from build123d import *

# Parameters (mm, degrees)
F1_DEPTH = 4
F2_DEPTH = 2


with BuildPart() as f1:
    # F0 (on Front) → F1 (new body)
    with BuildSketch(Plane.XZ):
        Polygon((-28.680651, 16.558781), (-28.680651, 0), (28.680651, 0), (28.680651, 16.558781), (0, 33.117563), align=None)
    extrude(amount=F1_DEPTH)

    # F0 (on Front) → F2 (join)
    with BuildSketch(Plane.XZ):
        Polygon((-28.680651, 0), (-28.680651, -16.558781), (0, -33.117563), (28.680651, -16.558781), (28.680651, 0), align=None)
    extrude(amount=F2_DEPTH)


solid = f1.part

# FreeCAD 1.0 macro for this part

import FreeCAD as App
import Part
import Sketcher

V = App.Vector
Q = App.Units.Quantity


def add_polygon(sketch, points):
    """Adds a closed chain of lines whose ends are joined by coincident constraints."""
    first, n = sketch.GeometryCount, len(points)
    for a, b in zip(points, points[1:] + points[:1]):
        sketch.addGeometry(Part.LineSegment(App.Vector(*a, 0), App.Vector(*b, 0)), False)
    for i in range(n):
        sketch.addConstraint(Sketcher.Constraint("Coincident", first + i, 2, first + (i + 1) % n, 1))

doc = App.newDocument("Part")
body = doc.addObject("PartDesign::Body", "Body")

# Sketch on XZ plane
sketch1 = doc.addObject("Sketcher::SketchObject", "Sketch")
body.addObject(sketch1)
sketch1.AttachmentSupport = (doc.XZ_Plane, [""])
sketch1.MapMode = "FlatFace"
add_polygon(sketch1, [(-28.680651, 16.558781), (-28.680651, 0), (28.680651, 0), (28.680651, 16.558781), (0, 33.117563)])  # lines 0-4
sketch1.addConstraint([
    Sketcher.Constraint("Vertical", 0),
    Sketcher.Constraint("Horizontal", 1),
    Sketcher.Constraint("Vertical", 2),
    Sketcher.Constraint("Symmetric", 0, 2, 1, 2, -1, 1),
    Sketcher.Constraint("PointOnObject", 3, 2, -2),
    Sketcher.Constraint("Horizontal", 2, 2, 4, 2),
    Sketcher.Constraint("Angle", 3, Q("149.999999 deg")),
    Sketcher.Constraint("DistanceY", 0, 2, 0, 1, Q("16.558781 mm")),
    Sketcher.Constraint("DistanceX", 1, 1, 1, 2, Q("57.361302 mm")),
])
pad1 = doc.addObject("PartDesign::Pad", "Pad")
body.addObject(pad1)
pad1.Profile = sketch1
pad1.Length = 4

# Sketch on XZ plane
sketch2 = doc.addObject("Sketcher::SketchObject", "Sketch001")
body.addObject(sketch2)
sketch2.AttachmentSupport = (doc.XZ_Plane, [""])
sketch2.MapMode = "FlatFace"
add_polygon(sketch2, [(-28.680651, 0), (-28.680651, -16.558781), (0, -33.117563), (28.680651, -16.558781), (28.680651, 0)])  # lines 0-4
sketch2.addConstraint([
    Sketcher.Constraint("Vertical", 0),
    Sketcher.Constraint("Vertical", 3),
    Sketcher.Constraint("Horizontal", 4),
    Sketcher.Constraint("Symmetric", 3, 2, 4, 2, -1, 1),
    Sketcher.Constraint("PointOnObject", 1, 2, -2),
    Sketcher.Constraint("Horizontal", 0, 2, 2, 2),
    Sketcher.Constraint("Angle", 1, Q("-30.000001 deg")),
    Sketcher.Constraint("DistanceY", 0, 2, 0, 1, Q("16.558781 mm")),
    Sketcher.Constraint("DistanceX", 4, 2, 4, 1, Q("57.361302 mm")),
])
pad2 = doc.addObject("PartDesign::Pad", "Pad001")
body.addObject(pad2)
pad2.Profile = sketch2
pad2.Length = 2

doc.recompute()
